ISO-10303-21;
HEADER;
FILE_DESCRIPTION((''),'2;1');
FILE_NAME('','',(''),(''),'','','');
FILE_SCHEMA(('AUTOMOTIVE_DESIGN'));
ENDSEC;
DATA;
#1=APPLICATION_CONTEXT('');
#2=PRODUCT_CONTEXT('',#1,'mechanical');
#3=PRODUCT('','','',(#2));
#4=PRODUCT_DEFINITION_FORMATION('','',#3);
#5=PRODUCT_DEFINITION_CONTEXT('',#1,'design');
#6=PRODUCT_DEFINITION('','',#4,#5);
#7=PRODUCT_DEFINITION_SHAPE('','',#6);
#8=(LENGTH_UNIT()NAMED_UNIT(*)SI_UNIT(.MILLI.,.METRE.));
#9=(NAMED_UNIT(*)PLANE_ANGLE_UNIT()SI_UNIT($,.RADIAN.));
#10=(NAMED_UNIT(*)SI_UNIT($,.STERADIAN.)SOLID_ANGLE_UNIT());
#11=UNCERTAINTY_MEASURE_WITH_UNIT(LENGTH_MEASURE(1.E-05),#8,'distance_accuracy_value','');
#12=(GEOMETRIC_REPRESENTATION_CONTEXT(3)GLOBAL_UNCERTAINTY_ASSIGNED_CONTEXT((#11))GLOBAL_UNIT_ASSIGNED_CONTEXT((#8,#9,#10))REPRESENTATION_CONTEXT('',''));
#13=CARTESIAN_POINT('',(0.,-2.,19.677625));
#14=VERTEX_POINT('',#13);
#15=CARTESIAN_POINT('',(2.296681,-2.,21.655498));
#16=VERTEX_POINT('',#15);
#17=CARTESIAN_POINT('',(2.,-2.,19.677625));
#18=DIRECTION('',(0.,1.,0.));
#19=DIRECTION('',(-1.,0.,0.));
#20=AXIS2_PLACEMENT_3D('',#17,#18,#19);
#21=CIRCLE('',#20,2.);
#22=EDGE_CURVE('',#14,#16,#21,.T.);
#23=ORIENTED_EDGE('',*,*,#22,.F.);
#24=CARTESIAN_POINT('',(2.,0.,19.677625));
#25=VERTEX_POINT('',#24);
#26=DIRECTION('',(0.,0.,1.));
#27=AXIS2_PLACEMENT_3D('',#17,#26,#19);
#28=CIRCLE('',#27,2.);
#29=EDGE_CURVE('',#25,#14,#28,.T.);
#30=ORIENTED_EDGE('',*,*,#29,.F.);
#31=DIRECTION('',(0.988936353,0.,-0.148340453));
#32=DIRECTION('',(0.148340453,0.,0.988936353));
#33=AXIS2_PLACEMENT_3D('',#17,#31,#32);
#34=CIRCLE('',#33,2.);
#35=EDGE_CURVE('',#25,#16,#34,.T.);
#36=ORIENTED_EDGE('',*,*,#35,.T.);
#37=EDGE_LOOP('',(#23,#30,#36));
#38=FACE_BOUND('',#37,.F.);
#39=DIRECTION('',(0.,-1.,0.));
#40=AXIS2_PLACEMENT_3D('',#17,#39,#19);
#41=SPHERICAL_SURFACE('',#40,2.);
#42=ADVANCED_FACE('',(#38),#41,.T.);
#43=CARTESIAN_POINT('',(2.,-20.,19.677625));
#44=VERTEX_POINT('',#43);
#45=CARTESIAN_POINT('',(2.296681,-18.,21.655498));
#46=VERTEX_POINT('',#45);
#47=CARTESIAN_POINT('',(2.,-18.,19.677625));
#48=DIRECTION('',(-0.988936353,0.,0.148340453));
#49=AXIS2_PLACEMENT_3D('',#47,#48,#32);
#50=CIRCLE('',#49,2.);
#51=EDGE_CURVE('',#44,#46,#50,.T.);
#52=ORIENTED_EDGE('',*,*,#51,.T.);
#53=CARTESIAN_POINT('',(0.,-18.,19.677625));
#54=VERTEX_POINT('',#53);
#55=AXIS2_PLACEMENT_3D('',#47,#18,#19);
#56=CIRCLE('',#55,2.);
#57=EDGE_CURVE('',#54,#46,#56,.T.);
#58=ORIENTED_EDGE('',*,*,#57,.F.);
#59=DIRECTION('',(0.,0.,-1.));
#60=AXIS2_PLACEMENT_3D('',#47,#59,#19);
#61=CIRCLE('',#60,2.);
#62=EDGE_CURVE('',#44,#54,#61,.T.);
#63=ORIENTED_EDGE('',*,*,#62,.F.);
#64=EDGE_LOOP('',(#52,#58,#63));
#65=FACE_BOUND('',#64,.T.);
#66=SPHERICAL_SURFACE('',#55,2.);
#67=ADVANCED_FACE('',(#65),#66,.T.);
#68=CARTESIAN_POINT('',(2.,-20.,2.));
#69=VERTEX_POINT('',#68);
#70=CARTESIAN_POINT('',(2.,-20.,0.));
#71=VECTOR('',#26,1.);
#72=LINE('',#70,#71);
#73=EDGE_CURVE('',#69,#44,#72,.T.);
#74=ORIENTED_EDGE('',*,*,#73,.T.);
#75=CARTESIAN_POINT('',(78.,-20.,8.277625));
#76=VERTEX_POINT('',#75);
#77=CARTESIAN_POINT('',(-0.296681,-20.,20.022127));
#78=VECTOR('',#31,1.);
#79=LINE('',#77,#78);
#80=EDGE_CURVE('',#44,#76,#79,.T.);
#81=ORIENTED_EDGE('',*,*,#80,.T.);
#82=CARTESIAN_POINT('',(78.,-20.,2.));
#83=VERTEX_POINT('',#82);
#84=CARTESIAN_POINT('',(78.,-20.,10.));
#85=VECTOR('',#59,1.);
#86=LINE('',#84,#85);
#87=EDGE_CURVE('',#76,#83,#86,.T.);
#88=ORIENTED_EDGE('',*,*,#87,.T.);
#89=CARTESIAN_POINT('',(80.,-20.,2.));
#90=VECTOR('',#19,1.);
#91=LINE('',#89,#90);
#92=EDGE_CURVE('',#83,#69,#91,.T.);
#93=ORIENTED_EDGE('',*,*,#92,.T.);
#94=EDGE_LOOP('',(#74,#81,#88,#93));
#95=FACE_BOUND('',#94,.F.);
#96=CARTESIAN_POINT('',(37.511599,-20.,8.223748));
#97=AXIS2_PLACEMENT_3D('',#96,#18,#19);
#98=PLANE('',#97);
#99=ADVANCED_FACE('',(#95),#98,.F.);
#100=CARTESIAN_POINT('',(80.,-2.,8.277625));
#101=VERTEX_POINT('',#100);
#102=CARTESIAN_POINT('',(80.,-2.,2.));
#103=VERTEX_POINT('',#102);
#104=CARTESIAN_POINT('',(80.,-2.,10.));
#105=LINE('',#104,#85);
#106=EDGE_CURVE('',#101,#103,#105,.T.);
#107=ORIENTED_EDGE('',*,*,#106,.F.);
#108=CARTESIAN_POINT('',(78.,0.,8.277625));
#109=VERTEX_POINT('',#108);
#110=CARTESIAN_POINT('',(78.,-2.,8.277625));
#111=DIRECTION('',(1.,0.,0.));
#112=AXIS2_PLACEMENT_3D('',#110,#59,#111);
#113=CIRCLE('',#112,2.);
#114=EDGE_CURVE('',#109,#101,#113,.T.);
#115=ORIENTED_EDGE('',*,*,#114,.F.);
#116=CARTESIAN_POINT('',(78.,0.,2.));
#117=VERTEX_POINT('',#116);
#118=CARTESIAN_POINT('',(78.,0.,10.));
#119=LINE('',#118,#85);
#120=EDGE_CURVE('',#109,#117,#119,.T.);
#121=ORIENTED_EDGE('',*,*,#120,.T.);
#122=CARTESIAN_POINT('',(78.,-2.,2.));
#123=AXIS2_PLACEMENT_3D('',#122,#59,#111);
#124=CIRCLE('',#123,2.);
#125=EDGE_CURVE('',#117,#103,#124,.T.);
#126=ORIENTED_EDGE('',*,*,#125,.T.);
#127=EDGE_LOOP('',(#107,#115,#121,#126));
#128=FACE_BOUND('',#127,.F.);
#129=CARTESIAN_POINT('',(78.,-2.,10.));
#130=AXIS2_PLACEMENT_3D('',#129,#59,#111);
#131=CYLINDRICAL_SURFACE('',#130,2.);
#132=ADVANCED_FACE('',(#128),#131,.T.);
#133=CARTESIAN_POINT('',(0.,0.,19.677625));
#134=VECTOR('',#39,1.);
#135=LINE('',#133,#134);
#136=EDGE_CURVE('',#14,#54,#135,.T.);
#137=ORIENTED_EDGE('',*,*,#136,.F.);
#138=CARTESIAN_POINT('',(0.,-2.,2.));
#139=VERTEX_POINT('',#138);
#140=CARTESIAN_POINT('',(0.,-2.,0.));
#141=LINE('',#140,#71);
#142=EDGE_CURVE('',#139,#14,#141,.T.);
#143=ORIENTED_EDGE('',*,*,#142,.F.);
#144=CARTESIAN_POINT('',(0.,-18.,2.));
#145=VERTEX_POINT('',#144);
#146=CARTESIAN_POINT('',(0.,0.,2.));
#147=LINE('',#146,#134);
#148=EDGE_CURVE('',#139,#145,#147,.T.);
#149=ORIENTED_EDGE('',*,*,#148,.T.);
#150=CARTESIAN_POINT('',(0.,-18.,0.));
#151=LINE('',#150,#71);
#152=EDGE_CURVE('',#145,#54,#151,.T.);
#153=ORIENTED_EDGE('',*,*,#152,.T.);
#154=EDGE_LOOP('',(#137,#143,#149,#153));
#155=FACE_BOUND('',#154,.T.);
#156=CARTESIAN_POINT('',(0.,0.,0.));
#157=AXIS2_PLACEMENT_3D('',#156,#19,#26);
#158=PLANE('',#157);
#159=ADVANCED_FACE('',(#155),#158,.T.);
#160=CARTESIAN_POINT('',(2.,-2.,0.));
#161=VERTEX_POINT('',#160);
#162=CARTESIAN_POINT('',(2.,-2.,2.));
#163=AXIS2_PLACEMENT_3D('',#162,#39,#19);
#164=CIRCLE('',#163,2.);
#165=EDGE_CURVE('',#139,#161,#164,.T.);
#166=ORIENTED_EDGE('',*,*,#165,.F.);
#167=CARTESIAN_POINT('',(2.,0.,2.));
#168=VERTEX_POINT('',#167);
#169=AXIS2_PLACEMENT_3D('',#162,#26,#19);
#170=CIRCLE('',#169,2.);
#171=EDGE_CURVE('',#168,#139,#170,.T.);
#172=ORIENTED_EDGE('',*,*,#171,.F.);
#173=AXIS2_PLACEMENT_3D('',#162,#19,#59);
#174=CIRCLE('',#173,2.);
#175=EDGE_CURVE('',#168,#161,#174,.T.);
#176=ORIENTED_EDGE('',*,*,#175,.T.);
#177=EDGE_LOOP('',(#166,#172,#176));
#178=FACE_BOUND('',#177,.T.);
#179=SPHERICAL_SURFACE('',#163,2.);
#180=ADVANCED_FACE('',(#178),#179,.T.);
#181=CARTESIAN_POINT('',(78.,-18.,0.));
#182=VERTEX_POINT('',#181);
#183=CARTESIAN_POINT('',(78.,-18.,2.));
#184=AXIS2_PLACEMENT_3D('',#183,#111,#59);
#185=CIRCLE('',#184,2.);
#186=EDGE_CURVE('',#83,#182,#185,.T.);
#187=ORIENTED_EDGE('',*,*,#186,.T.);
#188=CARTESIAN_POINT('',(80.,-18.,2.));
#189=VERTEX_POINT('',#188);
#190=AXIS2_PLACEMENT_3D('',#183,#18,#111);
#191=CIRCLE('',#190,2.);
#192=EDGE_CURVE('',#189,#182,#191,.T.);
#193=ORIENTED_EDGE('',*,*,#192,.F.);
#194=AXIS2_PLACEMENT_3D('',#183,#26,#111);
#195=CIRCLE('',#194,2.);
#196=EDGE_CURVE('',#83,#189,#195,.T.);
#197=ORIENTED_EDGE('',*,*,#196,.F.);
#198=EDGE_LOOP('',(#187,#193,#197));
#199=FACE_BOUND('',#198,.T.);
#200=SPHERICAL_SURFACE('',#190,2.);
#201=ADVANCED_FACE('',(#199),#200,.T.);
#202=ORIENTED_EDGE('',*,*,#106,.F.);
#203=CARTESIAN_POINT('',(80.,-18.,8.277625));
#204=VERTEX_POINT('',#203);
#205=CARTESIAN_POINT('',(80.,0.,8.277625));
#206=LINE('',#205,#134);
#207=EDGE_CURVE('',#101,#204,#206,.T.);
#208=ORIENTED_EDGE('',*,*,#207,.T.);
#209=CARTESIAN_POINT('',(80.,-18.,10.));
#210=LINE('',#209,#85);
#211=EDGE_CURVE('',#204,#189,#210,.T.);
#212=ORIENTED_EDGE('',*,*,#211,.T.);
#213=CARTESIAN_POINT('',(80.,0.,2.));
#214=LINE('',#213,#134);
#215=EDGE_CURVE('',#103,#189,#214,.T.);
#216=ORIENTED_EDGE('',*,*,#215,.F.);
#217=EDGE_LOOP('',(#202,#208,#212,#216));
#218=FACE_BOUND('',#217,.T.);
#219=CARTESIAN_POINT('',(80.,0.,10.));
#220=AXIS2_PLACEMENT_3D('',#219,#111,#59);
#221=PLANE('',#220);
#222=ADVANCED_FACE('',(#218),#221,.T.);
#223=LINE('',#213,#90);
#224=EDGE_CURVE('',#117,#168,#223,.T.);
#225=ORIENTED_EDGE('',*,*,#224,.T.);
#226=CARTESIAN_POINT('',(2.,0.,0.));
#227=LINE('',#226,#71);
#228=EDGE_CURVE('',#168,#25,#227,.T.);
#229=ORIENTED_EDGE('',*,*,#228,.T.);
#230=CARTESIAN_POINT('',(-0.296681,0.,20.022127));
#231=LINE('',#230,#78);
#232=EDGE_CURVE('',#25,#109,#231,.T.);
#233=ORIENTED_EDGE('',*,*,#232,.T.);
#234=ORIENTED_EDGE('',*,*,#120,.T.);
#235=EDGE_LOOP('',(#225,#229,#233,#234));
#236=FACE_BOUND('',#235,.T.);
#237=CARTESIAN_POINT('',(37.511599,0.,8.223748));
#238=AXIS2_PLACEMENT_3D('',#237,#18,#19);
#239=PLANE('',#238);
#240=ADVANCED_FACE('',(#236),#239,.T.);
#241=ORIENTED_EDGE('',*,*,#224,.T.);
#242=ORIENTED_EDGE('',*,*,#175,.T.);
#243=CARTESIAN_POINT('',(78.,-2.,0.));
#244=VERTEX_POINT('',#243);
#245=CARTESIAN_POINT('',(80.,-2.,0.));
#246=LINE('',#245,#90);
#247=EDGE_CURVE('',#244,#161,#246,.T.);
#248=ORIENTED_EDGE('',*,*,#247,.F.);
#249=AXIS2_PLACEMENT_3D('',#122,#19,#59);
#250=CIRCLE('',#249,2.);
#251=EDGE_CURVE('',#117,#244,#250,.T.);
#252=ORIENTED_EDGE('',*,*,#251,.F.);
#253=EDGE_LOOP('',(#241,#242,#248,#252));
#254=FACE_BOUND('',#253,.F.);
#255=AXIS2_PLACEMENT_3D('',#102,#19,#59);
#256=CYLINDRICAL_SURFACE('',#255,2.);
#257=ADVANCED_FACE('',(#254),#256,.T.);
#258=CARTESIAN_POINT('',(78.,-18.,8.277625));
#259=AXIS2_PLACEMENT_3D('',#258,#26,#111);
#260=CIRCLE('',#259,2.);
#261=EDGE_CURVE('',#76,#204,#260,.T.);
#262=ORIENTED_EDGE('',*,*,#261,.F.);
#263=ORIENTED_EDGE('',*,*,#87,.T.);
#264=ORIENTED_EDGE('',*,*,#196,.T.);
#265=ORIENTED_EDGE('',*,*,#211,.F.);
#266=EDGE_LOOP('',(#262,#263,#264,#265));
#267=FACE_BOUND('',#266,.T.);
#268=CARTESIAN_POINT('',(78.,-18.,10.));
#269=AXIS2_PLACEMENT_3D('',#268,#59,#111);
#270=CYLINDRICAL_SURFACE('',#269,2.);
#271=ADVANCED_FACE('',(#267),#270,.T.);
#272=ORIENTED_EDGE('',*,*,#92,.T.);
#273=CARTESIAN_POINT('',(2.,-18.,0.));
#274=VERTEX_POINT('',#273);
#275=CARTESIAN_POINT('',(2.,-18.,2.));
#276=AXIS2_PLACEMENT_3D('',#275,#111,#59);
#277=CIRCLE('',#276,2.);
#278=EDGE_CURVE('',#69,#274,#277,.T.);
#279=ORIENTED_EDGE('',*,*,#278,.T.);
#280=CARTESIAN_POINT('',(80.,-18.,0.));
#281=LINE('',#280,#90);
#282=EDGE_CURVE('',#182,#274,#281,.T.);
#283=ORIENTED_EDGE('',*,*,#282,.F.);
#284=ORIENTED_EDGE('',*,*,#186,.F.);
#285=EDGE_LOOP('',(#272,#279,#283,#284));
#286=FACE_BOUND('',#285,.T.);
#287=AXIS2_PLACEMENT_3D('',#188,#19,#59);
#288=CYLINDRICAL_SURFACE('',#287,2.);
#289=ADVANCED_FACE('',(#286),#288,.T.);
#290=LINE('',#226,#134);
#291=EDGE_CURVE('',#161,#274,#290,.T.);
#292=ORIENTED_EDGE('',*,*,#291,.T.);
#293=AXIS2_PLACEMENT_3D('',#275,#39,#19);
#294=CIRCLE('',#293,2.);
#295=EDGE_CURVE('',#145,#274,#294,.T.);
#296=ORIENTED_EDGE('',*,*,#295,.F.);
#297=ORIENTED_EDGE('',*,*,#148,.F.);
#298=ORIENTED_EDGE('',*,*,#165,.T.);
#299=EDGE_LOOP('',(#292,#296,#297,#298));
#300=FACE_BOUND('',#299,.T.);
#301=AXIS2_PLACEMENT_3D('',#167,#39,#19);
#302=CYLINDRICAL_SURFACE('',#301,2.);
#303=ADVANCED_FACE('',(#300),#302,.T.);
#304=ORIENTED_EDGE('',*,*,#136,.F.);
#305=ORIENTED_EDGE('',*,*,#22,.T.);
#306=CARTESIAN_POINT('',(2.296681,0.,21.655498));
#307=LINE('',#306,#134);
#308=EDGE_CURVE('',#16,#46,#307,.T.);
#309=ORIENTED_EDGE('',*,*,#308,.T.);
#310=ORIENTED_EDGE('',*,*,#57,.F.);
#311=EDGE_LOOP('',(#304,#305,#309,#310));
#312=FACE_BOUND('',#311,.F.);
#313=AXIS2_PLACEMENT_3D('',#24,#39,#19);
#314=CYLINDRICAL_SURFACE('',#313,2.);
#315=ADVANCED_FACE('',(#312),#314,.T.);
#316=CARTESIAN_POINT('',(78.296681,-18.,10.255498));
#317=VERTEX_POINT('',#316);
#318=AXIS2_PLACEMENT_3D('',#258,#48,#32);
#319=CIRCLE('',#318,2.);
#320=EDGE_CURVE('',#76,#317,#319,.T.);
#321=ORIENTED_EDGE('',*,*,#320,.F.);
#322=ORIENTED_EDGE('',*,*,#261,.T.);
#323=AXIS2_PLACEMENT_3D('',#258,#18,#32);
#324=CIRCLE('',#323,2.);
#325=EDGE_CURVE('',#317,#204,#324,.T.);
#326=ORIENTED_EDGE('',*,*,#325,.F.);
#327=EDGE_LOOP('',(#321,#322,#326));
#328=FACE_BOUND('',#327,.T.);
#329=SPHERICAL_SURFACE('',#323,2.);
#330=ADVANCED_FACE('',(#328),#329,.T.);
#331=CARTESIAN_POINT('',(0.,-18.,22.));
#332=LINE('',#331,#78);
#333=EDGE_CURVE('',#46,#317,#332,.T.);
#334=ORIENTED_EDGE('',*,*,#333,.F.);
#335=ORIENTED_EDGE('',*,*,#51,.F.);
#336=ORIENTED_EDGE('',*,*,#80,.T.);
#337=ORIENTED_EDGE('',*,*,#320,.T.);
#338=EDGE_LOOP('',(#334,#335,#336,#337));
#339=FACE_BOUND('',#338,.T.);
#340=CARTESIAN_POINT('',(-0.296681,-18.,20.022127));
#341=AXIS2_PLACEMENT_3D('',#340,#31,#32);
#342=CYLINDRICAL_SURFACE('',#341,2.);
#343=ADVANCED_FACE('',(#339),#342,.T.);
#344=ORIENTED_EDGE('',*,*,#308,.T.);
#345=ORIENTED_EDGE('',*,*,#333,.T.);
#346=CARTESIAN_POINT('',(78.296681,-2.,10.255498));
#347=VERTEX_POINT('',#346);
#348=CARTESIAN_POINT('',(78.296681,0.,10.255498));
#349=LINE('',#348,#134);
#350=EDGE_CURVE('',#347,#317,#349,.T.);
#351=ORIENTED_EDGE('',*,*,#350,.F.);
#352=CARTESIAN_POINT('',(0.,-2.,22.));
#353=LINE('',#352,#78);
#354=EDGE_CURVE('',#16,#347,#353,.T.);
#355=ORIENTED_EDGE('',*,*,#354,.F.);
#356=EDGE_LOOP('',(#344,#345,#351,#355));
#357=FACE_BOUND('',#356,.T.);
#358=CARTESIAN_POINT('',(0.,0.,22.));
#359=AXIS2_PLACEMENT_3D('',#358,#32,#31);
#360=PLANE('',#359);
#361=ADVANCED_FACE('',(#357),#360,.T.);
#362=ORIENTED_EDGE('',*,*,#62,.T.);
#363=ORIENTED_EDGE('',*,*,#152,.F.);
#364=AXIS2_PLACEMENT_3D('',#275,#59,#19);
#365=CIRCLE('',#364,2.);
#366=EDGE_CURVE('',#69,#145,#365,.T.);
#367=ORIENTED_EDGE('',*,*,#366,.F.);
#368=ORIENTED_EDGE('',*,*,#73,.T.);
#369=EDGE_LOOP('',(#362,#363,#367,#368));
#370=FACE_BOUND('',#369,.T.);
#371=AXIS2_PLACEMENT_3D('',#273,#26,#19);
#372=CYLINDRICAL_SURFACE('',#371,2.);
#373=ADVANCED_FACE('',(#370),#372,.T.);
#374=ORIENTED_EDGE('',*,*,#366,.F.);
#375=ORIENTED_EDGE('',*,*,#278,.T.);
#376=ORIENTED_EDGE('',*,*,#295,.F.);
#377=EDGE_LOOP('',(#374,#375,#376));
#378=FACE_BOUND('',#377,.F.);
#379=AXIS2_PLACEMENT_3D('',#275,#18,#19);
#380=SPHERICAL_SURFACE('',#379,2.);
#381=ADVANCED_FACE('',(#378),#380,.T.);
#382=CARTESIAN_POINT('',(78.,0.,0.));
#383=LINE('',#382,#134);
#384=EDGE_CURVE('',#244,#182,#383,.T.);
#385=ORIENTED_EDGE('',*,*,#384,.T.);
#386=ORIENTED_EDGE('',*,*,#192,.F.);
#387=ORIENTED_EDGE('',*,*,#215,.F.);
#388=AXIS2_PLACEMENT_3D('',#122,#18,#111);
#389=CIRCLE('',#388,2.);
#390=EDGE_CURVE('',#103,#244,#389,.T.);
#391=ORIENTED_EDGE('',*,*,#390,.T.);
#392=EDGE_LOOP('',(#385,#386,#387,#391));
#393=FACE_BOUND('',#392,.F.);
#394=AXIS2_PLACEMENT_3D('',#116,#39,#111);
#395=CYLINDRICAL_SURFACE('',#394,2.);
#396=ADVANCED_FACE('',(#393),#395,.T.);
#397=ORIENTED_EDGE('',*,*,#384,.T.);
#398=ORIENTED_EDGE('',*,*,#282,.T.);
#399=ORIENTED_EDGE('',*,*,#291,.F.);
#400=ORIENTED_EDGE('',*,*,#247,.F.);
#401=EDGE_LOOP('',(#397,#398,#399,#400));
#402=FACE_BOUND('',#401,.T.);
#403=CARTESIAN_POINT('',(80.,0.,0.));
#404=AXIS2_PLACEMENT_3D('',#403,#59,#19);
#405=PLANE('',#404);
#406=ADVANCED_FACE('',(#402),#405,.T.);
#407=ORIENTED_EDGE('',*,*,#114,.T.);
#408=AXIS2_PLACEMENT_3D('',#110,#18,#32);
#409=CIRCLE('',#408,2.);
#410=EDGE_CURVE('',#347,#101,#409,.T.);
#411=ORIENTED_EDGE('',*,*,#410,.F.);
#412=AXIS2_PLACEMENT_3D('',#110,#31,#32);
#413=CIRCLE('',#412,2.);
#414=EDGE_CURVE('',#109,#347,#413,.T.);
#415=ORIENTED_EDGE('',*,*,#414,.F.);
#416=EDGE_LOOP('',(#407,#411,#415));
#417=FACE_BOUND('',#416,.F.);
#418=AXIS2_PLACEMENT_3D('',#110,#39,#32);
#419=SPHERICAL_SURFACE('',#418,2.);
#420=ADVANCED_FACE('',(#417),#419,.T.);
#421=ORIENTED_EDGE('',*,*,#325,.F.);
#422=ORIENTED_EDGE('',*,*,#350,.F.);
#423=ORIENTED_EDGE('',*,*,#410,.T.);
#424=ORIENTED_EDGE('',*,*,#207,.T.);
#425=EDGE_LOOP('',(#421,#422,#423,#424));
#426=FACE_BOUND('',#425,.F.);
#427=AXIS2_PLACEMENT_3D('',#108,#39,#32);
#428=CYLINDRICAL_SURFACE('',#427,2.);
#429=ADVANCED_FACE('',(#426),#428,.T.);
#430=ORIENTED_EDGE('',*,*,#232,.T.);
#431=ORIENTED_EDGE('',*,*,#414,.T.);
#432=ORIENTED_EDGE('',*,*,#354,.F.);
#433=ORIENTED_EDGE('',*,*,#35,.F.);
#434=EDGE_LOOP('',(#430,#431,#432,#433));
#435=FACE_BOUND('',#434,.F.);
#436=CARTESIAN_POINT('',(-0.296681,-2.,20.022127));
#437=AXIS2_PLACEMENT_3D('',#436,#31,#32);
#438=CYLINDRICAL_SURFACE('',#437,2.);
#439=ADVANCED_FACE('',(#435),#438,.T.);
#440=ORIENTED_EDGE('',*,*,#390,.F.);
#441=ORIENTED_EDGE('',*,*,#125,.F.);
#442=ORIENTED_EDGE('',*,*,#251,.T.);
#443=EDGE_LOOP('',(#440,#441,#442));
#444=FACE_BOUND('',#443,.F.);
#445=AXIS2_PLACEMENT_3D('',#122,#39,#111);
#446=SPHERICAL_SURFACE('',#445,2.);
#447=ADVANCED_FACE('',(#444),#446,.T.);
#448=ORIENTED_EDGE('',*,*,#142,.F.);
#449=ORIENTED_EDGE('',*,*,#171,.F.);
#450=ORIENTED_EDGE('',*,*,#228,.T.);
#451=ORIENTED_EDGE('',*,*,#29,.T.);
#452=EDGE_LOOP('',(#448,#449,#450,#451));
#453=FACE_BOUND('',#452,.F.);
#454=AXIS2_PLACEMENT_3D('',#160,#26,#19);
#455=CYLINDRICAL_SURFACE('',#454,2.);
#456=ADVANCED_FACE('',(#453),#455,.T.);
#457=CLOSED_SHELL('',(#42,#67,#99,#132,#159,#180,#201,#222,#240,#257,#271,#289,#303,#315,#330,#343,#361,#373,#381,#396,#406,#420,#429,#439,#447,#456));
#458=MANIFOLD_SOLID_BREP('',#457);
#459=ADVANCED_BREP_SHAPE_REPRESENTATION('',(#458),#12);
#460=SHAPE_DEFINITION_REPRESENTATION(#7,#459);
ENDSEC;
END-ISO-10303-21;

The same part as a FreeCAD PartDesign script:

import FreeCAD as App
import Part
import Sketcher

V = App.Vector
Q = App.Units.Quantity


def add_polygon(sketch, points):
    """Adds a closed chain of lines whose ends are joined by coincident constraints."""
    first, n = sketch.GeometryCount, len(points)
    for a, b in zip(points, points[1:] + points[:1]):
        sketch.addGeometry(Part.LineSegment(App.Vector(*a, 0), App.Vector(*b, 0)), False)
    for i in range(n):
        sketch.addConstraint(Sketcher.Constraint("Coincident", first + i, 2, first + (i + 1) % n, 1))

doc = App.newDocument("Part")
params = doc.addObject("Spreadsheet::Sheet", "Params")
for row, (alias, value) in enumerate([
    ("sketch1_width", "80 mm"),
    ("sketch1_height", "22 mm"),
    ("sketch1_height2", "10 mm"),
    ("pad1_length", "20 mm"),
    ("fillet_radius", "2 mm"),
], start=1):
    params.set(f"A{row}", alias)
    params.set(f"B{row}", "=" + value)
    params.setAlias(f"B{row}", alias)

body = doc.addObject("PartDesign::Body", "Body")

sketch1 = body.newObject("Sketcher::SketchObject", "Sketch")
sketch1.AttachmentSupport = (doc.getObject("XZ_Plane"), [""])
sketch1.MapMode = "FlatFace"
add_polygon(sketch1, [(0, 22), (0, 0), (80, 0), (80, 10)])
sketch1.addConstraint([
    Sketcher.Constraint("Vertical", 0),
    Sketcher.Constraint("Horizontal", 1),
    Sketcher.Constraint("Vertical", 2),
    Sketcher.Constraint("Coincident", 0, 2, -1, 1),
    Sketcher.Constraint("DistanceX", 1, 1, 1, 2, Q("80 mm")),
    Sketcher.Constraint("DistanceY", 0, 2, 0, 1, Q("22 mm")),
    Sketcher.Constraint("DistanceY", 2, 1, 2, 2, Q("10 mm")),
])
sketch1.setExpression("Constraints[8]", "Params.sketch1_width")
sketch1.setExpression("Constraints[9]", "Params.sketch1_height")
sketch1.setExpression("Constraints[10]", "Params.sketch1_height2")
pad1 = body.newObject("PartDesign::Pad", "Pad")
pad1.Profile = sketch1
pad1.setExpression("Length", "Params.pad1_length")
doc.recompute()

fillet = body.newObject("PartDesign::Fillet", "Fillet")
fillet.Base = (pad1, ["Edge1"])
fillet.UseAllEdges = True
fillet.setExpression("Radius", "Params.fillet_radius")

doc.recompute()
